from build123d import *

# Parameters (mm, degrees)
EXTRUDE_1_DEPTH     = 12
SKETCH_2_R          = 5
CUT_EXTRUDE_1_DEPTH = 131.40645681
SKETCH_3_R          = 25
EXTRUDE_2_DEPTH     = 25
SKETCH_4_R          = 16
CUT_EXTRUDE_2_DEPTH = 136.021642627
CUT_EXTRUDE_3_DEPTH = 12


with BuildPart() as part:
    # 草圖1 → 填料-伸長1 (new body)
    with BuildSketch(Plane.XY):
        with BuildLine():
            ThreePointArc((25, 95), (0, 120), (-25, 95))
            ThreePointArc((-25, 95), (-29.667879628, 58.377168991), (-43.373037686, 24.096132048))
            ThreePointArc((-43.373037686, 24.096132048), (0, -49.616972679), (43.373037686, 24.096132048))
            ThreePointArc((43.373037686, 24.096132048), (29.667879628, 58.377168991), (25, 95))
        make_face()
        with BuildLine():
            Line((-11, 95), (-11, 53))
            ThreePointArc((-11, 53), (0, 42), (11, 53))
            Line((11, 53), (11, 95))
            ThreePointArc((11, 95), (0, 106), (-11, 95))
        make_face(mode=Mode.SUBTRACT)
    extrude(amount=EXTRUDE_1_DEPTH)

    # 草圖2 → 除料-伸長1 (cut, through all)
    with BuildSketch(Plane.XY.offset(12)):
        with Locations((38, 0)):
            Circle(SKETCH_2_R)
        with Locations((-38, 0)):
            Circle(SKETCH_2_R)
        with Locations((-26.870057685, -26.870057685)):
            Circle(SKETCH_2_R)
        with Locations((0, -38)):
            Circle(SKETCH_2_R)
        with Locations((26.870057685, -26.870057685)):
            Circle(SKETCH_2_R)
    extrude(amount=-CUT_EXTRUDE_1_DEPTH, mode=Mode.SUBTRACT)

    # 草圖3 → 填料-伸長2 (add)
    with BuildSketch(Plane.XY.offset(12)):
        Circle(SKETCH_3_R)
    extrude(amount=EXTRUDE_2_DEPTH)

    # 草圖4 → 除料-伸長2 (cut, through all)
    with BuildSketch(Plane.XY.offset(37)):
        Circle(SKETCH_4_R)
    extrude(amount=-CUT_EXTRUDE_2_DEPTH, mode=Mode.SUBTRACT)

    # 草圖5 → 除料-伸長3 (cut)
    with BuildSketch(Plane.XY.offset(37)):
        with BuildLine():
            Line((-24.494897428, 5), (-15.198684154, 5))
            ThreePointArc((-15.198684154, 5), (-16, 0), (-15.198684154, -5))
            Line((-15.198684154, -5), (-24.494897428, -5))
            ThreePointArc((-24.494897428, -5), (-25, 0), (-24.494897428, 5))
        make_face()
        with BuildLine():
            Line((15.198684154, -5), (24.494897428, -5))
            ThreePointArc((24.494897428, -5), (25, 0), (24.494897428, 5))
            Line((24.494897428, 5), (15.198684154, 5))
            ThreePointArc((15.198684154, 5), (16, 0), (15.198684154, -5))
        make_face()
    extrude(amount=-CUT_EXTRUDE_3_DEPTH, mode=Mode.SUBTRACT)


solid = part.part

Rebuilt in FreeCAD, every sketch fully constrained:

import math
import FreeCAD as App
import Part
import Sketcher
from FreeCAD import Vector
Q = App.Units.Quantity

doc = App.newDocument("Part")
body = doc.addObject("PartDesign::Body", "Body")

sketch1 = body.newObject("Sketcher::SketchObject", "Sketch")
sketch1.AttachmentSupport = (doc.getObject("XY_Plane"), [""])
sketch1.MapMode = "FlatFace"
sketch1.addGeometry(Part.ArcOfCircle(Part.Circle(Vector(0, 95, 0), Vector(0, 0, 1), 25), math.radians(0), math.radians(180)), False)
sketch1.addGeometry(Part.ArcOfCircle(Part.Circle(Vector(-171, 95, 0), Vector(0, 0, 1), 146), math.radians(-29), math.radians(0)), False)
sketch1.addGeometry(Part.ArcOfCircle(Part.Circle(Vector(0, 0, 0), Vector(0, 0, 1), 50), math.radians(151), math.radians(389)), False)
sketch1.addGeometry(Part.ArcOfCircle(Part.Circle(Vector(171, 95, 0), Vector(0, 0, 1), 146), math.radians(-180), math.radians(-151)), False)
sketch1.addGeometry(Part.LineSegment(Vector(-11, 53, 0), Vector(-11, 95, 0)), False)
sketch1.addGeometry(Part.ArcOfCircle(Part.Circle(Vector(0, 95, 0), Vector(0, 0, 1), 11), math.radians(0), math.radians(180)), False)
sketch1.addGeometry(Part.LineSegment(Vector(11, 95, 0), Vector(11, 53, 0)), False)
sketch1.addGeometry(Part.ArcOfCircle(Part.Circle(Vector(0, 53, 0), Vector(0, 0, 1), 11), math.radians(180), math.radians(360)), False)
sketch1.addConstraint(Sketcher.Constraint("Tangent", 0, 2, 1, 2))
sketch1.addConstraint(Sketcher.Constraint("Tangent", 1, 1, 2, 1))
sketch1.addConstraint(Sketcher.Constraint("Tangent", 2, 2, 3, 2))
sketch1.addConstraint(Sketcher.Constraint("Tangent", 3, 1, 0, 1))
sketch1.addConstraint(Sketcher.Constraint("Tangent", 4, 2, 5, 2))
sketch1.addConstraint(Sketcher.Constraint("Tangent", 5, 1, 6, 1))
sketch1.addConstraint(Sketcher.Constraint("Tangent", 6, 2, 7, 2))
sketch1.addConstraint(Sketcher.Constraint("Tangent", 7, 1, 4, 1))
sketch1.addConstraint(Sketcher.Constraint("Vertical", 4))
sketch1.addConstraint(Sketcher.Constraint("Vertical", 6))
sketch1.addConstraint(Sketcher.Constraint("Coincident", 2, 3, -1, 1))
sketch1.addConstraint(Sketcher.Constraint("Coincident", 5, 3, 0, 3))
sketch1.addConstraint(Sketcher.Constraint("Equal", 1, 3))
sketch1.addConstraint(Sketcher.Constraint("PointOnObject", 0, 3, -2))
sketch1.addConstraint(Sketcher.Constraint("Horizontal", 0, 3, 1, 3))
sketch1.addConstraint(Sketcher.Constraint("Radius", 0, Q("25 mm")))
sketch1.addConstraint(Sketcher.Constraint("Radius", 1, Q("146 mm")))
sketch1.addConstraint(Sketcher.Constraint("Radius", 5, Q("11 mm")))
sketch1.addConstraint(Sketcher.Constraint("DistanceY", 4, 1, 4, 2, Q("42 mm")))
sketch1.addConstraint(Sketcher.Constraint("DistanceY", -1, 1, 0, 3, Q("95 mm")))
pad1 = body.newObject("PartDesign::Pad", "Pad")
pad1.Profile = sketch1
pad1.Length = 12

sketch2 = body.newObject("Sketcher::SketchObject", "Sketch001")
sketch2.AttachmentSupport = (doc.getObject("XY_Plane"), [""])
sketch2.MapMode = "FlatFace"
sketch2.AttachmentOffset = App.Placement(Vector(0, 0, 12), App.Rotation())
sketch2.addGeometry(Part.Circle(Vector(38, 0, 0), Vector(0, 0, 1), 5), False)
sketch2.addGeometry(Part.Circle(Vector(-38, 0, 0), Vector(0, 0, 1), 5), False)
sketch2.addGeometry(Part.Circle(Vector(-27, -27, 0), Vector(0, 0, 1), 5), False)
sketch2.addGeometry(Part.Circle(Vector(0, -38, 0), Vector(0, 0, 1), 5), False)
sketch2.addGeometry(Part.Circle(Vector(27, -27, 0), Vector(0, 0, 1), 5), False)
sketch2.addConstraint(Sketcher.Constraint("Equal", 0, 1))
sketch2.addConstraint(Sketcher.Constraint("Equal", 1, 2))
sketch2.addConstraint(Sketcher.Constraint("Equal", 2, 3))
sketch2.addConstraint(Sketcher.Constraint("Equal", 3, 4))
sketch2.addConstraint(Sketcher.Constraint("Symmetric", 0, 3, 1, 3, -1, 1))
sketch2.addConstraint(Sketcher.Constraint("Symmetric", 2, 3, 4, 3, -2))
sketch2.addConstraint(Sketcher.Constraint("PointOnObject", 0, 3, -1))
sketch2.addConstraint(Sketcher.Constraint("PointOnObject", 3, 3, -2))
sketch2.addConstraint(Sketcher.Constraint("Diameter", 0, Q("10 mm")))
sketch2.addConstraint(Sketcher.Constraint("DistanceX", -1, 1, 0, 3, Q("38 mm")))
sketch2.addConstraint(Sketcher.Constraint("DistanceY", 3, 3, -1, 1, Q("38 mm")))
sketch2.addConstraint(Sketcher.Constraint("DistanceX", 2, 3, -1, 1, Q("26.870058 mm")))
sketch2.addConstraint(Sketcher.Constraint("DistanceY", 2, 3, -1, 1, Q("26.870058 mm")))
pocket1 = body.newObject("PartDesign::Pocket", "Pocket")
pocket1.Profile = sketch2
pocket1.Type = "ThroughAll"

sketch3 = body.newObject("Sketcher::SketchObject", "Sketch002")
sketch3.AttachmentSupport = (doc.getObject("XY_Plane"), [""])
sketch3.MapMode = "FlatFace"
sketch3.AttachmentOffset = App.Placement(Vector(0, 0, 12), App.Rotation())
sketch3.addGeometry(Part.Circle(Vector(0, 0, 0), Vector(0, 0, 1), 25), False)
sketch3.addConstraint(Sketcher.Constraint("Coincident", 0, 3, -1, 1))
sketch3.addConstraint(Sketcher.Constraint("Diameter", 0, Q("50 mm")))
pad2 = body.newObject("PartDesign::Pad", "Pad001")
pad2.Profile = sketch3
pad2.Length = 25

sketch4 = body.newObject("Sketcher::SketchObject", "Sketch003")
sketch4.AttachmentSupport = (doc.getObject("XY_Plane"), [""])
sketch4.MapMode = "FlatFace"
sketch4.AttachmentOffset = App.Placement(Vector(0, 0, 37), App.Rotation())
sketch4.addGeometry(Part.Circle(Vector(0, 0, 0), Vector(0, 0, 1), 16), False)
sketch4.addConstraint(Sketcher.Constraint("Coincident", 0, 3, -1, 1))
sketch4.addConstraint(Sketcher.Constraint("Diameter", 0, Q("32 mm")))
pocket2 = body.newObject("PartDesign::Pocket", "Pocket001")
pocket2.Profile = sketch4
pocket2.Type = "ThroughAll"

sketch5 = body.newObject("Sketcher::SketchObject", "Sketch004")
sketch5.AttachmentSupport = (doc.getObject("XY_Plane"), [""])
sketch5.MapMode = "FlatFace"
sketch5.AttachmentOffset = App.Placement(Vector(0, 0, 37), App.Rotation())
sketch5.addGeometry(Part.LineSegment(Vector(-15, 5, 0), Vector(-24, 5, 0)), False)
sketch5.addGeometry(Part.ArcOfCircle(Part.Circle(Vector(0, 0, 0), Vector(0, 0, 1), 25), math.radians(168), math.radians(192)), False)
sketch5.addGeometry(Part.LineSegment(Vector(-24, -5, 0), Vector(-15, -5, 0)), False)
sketch5.addGeometry(Part.ArcOfCircle(Part.Circle(Vector(0, 0, 0), Vector(0, 0, 1), 16), math.radians(162), math.radians(198)), False)
sketch5.addGeometry(Part.LineSegment(Vector(15, -5, 0), Vector(24, -5, 0)), False)
sketch5.addGeometry(Part.ArcOfCircle(Part.Circle(Vector(0, 0, 0), Vector(0, 0, 1), 25), math.radians(-12), math.radians(12)), False)
sketch5.addGeometry(Part.LineSegment(Vector(24, 5, 0), Vector(15, 5, 0)), False)
sketch5.addGeometry(Part.ArcOfCircle(Part.Circle(Vector(0, 0, 0), Vector(0, 0, 1), 16), math.radians(-18), math.radians(18)), False)
sketch5.addConstraint(Sketcher.Constraint("Coincident", 0, 2, 1, 1))
sketch5.addConstraint(Sketcher.Constraint("Coincident", 1, 2, 2, 1))
sketch5.addConstraint(Sketcher.Constraint("Coincident", 2, 2, 3, 2))
sketch5.addConstraint(Sketcher.Constraint("Coincident", 3, 1, 0, 1))
sketch5.addConstraint(Sketcher.Constraint("Coincident", 4, 2, 5, 1))
sketch5.addConstraint(Sketcher.Constraint("Coincident", 5, 2, 6, 1))
sketch5.addConstraint(Sketcher.Constraint("Coincident", 6, 2, 7, 2))
sketch5.addConstraint(Sketcher.Constraint("Coincident", 7, 1, 4, 1))
sketch5.addConstraint(Sketcher.Constraint("Horizontal", 0))
sketch5.addConstraint(Sketcher.Constraint("Horizontal", 2))
sketch5.addConstraint(Sketcher.Constraint("Horizontal", 4))
sketch5.addConstraint(Sketcher.Constraint("Horizontal", 6))
sketch5.addConstraint(Sketcher.Constraint("Coincident", 1, 3, -1, 1))
sketch5.addConstraint(Sketcher.Constraint("Coincident", 3, 3, -1, 1))
sketch5.addConstraint(Sketcher.Constraint("Coincident", 5, 3, -1, 1))
sketch5.addConstraint(Sketcher.Constraint("Coincident", 7, 3, -1, 1))
sketch5.addConstraint(Sketcher.Constraint("Equal", 1, 5))
sketch5.addConstraint(Sketcher.Constraint("Equal", 3, 7))
sketch5.addConstraint(Sketcher.Constraint("Horizontal", 2, 2, 4, 2))
sketch5.addConstraint(Sketcher.Constraint("Horizontal", 3, 1, 5, 2))
sketch5.addConstraint(Sketcher.Constraint("Vertical", 0, 2, 1, 2))
sketch5.addConstraint(Sketcher.Constraint("Radius", 1, Q("25 mm")))
sketch5.addConstraint(Sketcher.Constraint("Radius", 3, Q("16 mm")))
sketch5.addConstraint(Sketcher.Constraint("DistanceY", -1, 1, 0, 2, Q("5 mm")))
pocket3 = body.newObject("PartDesign::Pocket", "Pocket002")
pocket3.Profile = sketch5
pocket3.Length = 12

doc.recompute()
